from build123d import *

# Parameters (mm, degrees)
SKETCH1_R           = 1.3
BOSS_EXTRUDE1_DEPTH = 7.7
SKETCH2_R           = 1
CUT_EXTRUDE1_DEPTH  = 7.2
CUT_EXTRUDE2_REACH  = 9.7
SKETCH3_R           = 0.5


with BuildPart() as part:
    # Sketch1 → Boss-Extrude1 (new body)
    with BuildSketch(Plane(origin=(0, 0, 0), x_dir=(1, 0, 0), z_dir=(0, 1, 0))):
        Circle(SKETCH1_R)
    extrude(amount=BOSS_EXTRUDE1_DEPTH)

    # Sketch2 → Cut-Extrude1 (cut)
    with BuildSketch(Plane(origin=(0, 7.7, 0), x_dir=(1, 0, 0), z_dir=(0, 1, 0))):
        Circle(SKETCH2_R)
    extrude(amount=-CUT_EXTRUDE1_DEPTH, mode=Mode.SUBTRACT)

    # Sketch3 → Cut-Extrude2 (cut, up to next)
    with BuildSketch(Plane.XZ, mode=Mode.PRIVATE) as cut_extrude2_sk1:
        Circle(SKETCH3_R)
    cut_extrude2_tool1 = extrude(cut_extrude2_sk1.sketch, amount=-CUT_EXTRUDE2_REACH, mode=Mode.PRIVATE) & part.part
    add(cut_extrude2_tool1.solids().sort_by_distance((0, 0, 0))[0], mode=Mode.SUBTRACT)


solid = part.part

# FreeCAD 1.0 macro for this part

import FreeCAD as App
import Part
import Sketcher
from FreeCAD import Vector

doc = App.newDocument("Part")
body = doc.addObject("PartDesign::Body", "Body")

# Sketch on XZ plane
sketch1 = body.newObject("Sketcher::SketchObject", "Sketch")
sketch1.AttachmentSupport = (doc.getObject("XZ_Plane"), [""])
sketch1.MapMode = "FlatFace"
sketch1.addGeometry(Part.Circle(Vector(0, 0, 0), Vector(0, 0, 1), 1.3), False)
sketch1.addConstraint([
    Sketcher.Constraint("Coincident", 0, 3, -1, 1),
    Sketcher.Constraint("Diameter", 0, 2.6),
])
pad1 = body.newObject("PartDesign::Pad", "Pad")
pad1.Profile = sketch1
pad1.Length = 7.7
pad1.Reversed = True

# Sketch on XZ plane
sketch2 = body.newObject("Sketcher::SketchObject", "Sketch001")
sketch2.AttachmentSupport = (doc.getObject("XZ_Plane"), [""])
sketch2.MapMode = "FlatFace"
sketch2.AttachmentOffset = App.Placement(Vector(0, 0, -7.7), App.Rotation())
sketch2.addGeometry(Part.Circle(Vector(0, 0, 0), Vector(0, 0, 1), 1), False)
sketch2.addConstraint([
    Sketcher.Constraint("Coincident", 0, 3, -1, 1),
    Sketcher.Constraint("Diameter", 0, 2.0),
])
pocket1 = body.newObject("PartDesign::Pocket", "Pocket")
pocket1.Profile = sketch2
pocket1.Length = 7.2
pocket1.Reversed = True

# Sketch on XZ plane
sketch3 = body.newObject("Sketcher::SketchObject", "Sketch002")
sketch3.AttachmentSupport = (doc.getObject("XZ_Plane"), [""])
sketch3.MapMode = "FlatFace"
sketch3.addGeometry(Part.Circle(Vector(0, 0, 0), Vector(0, 0, 1), 0.5), False)
sketch3.addConstraint([
    Sketcher.Constraint("Coincident", 0, 3, -1, 1),
    Sketcher.Constraint("Diameter", 0, 1.0),
])
pocket2 = body.newObject("PartDesign::Pocket", "Pocket001")
pocket2.Profile = sketch3
pocket2.Type = "UpToFirst"

doc.recompute()
